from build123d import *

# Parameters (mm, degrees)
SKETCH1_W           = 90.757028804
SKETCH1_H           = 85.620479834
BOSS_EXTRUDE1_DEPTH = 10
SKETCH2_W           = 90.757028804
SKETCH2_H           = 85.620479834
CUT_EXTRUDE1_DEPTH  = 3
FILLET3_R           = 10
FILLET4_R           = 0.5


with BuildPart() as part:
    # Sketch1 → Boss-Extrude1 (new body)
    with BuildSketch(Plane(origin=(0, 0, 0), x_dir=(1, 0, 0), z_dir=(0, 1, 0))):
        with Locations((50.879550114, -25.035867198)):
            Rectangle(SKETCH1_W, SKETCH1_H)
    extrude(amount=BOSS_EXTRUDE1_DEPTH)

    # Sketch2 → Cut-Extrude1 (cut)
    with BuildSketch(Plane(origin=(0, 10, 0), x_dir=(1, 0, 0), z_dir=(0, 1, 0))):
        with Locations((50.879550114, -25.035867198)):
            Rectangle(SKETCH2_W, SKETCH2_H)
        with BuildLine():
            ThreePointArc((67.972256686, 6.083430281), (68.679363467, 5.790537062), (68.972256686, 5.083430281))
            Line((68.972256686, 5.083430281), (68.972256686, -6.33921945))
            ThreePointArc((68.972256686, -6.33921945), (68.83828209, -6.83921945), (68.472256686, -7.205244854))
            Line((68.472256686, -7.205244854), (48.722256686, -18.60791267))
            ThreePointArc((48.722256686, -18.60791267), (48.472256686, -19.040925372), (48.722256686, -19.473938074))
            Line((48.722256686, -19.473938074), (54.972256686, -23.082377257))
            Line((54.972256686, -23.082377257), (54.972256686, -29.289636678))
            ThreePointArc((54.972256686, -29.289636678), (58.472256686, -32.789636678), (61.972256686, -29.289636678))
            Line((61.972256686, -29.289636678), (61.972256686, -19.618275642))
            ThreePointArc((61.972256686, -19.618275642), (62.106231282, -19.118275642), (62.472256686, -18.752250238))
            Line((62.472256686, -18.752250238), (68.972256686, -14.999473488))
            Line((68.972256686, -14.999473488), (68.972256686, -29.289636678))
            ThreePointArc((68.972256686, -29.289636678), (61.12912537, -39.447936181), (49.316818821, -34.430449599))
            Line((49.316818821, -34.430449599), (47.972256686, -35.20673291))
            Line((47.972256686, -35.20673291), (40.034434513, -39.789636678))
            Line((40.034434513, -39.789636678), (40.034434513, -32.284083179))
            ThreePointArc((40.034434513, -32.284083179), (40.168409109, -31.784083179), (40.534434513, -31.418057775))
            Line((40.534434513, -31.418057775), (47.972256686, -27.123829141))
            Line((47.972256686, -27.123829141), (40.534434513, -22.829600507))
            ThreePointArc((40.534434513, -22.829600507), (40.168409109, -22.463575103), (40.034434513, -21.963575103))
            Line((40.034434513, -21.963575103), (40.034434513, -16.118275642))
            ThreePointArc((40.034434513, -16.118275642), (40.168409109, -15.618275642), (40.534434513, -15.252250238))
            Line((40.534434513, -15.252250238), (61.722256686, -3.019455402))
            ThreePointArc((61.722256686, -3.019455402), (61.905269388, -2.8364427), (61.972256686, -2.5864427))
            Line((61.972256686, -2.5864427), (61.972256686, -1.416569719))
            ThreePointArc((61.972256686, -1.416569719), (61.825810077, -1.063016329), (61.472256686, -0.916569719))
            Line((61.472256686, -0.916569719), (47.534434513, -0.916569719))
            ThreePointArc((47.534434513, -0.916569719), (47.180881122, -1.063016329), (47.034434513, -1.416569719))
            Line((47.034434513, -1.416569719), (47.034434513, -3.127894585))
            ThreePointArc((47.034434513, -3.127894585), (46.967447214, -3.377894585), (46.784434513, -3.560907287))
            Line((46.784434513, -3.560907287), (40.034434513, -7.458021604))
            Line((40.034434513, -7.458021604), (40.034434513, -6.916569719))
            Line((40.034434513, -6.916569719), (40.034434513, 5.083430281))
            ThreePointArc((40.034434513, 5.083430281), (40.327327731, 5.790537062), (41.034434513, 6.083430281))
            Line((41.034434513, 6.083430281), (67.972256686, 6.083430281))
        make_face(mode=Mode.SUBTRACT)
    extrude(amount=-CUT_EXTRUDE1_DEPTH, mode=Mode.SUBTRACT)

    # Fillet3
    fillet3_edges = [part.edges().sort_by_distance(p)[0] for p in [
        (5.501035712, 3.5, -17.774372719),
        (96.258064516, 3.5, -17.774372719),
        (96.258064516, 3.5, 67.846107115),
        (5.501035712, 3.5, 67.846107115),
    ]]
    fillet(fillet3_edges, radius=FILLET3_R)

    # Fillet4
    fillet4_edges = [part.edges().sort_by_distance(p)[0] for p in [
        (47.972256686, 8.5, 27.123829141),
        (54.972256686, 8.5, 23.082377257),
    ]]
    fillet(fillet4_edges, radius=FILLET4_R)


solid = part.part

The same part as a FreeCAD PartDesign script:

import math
import FreeCAD as App
import Part
import Sketcher
from FreeCAD import Vector
Q = App.Units.Quantity


def edges_at(feature, points):
    """Names of the edges that pass closest to the given points."""
    edges = feature.Shape.Edges
    near = lambda p: min(range(len(edges)), key=lambda i: edges[i].distToShape(Part.Vertex(*p))[0])
    return sorted({f"Edge{near(p) + 1}" for p in points})


def add_polygon(sketch, points):
    """Adds a closed chain of lines whose ends are joined by coincident constraints."""
    first, n = sketch.GeometryCount, len(points)
    for a, b in zip(points, points[1:] + points[:1]):
        sketch.addGeometry(Part.LineSegment(App.Vector(*a, 0), App.Vector(*b, 0)), False)
    for i in range(n):
        sketch.addConstraint(Sketcher.Constraint("Coincident", first + i, 2, first + (i + 1) % n, 1))

doc = App.newDocument("Part")
params = doc.addObject("Spreadsheet::Sheet", "Params")
for row, (alias, value) in enumerate([
    ("pad1_length", "10 mm"),
    ("sketch2_radius", "1 mm"),
    ("sketch2_radius2", "0.5 mm"),
    ("sketch2_radius3", "3.5 mm"),
    ("sketch2_radius4", "10.5 mm"),
    ("pocket1_length", "3 mm"),
    ("fillet_radius", "10 mm"),
    ("fillet2_radius", "0.5 mm"),
], start=1):
    params.set(f"A{row}", alias)
    params.set(f"B{row}", "=" + value)
    params.setAlias(f"B{row}", alias)

body = doc.addObject("PartDesign::Body", "Body")

# Sketch on XZ plane
sketch1 = doc.addObject("Sketcher::SketchObject", "Sketch")
body.addObject(sketch1)
sketch1.AttachmentSupport = (doc.XZ_Plane, [""])
sketch1.MapMode = "FlatFace"
add_polygon(sketch1, [(5.501036, -17.774373), (5.501036, 67.846107), (96.258065, 67.846107), (96.258065, -17.774373)])  # lines 0-3
sketch1.addConstraint(Sketcher.Constraint("Vertical", 0))
sketch1.addConstraint(Sketcher.Constraint("Horizontal", 1))
sketch1.addConstraint(Sketcher.Constraint("Vertical", 2))
sketch1.addConstraint(Sketcher.Constraint("Horizontal", 3))
sketch1.addConstraint(Sketcher.Constraint("DistanceX", 1, 1, 1, 2, 90.757029))
sketch1.addConstraint(Sketcher.Constraint("DistanceY", 0, 1, 0, 2, 85.62048))
sketch1.addConstraint(Sketcher.Constraint("DistanceX", -1, 1, 0, 2, 5.501036))
sketch1.addConstraint(Sketcher.Constraint("DistanceY", -1, 1, 0, 2, 67.846107))
pad1 = doc.addObject("PartDesign::Pad", "Pad")
body.addObject(pad1)
pad1.Profile = sketch1
pad1.setExpression("Length", "Params.pad1_length")
pad1.Reversed = True

# Sketch on XZ plane
sketch2 = doc.addObject("Sketcher::SketchObject", "Sketch001")
body.addObject(sketch2)
sketch2.AttachmentSupport = (doc.XZ_Plane, [""])
sketch2.MapMode = "FlatFace"
sketch2.AttachmentOffset = App.Placement(Vector(0, 0, -10), App.Rotation())
add_polygon(sketch2, [(5.501036, -17.774373), (5.501036, 67.846107), (96.258065, 67.846107), (96.258065, -17.774373)])  # lines 0-3
sketch2.addGeometry(Part.LineSegment(Vector(41.034435, -6.08343, 0), Vector(67.972257, -6.08343, 0)), False)  # 4
sketch2.addGeometry(Part.ArcOfCircle(Part.Circle(Vector(67.972257, -5.08343, 0), Vector(0, 0, 1), 1), math.radians(-90), math.radians(0)), False)  # 5
sketch2.addGeometry(Part.LineSegment(Vector(68.972257, -5.08343, 0), Vector(68.972257, 6.339219, 0)), False)  # 6
sketch2.addGeometry(Part.ArcOfCircle(Part.Circle(Vector(67.972257, 6.339219, 0), Vector(0, 0, 1), 1), math.radians(0), math.radians(60)), False)  # 7
sketch2.addGeometry(Part.LineSegment(Vector(68.472257, 7.205245, 0), Vector(48.722257, 18.607913, 0)), False)  # 8
sketch2.addGeometry(Part.ArcOfCircle(Part.Circle(Vector(48.972257, 19.040925, 0), Vector(0, 0, 1), 0.5), math.radians(120), math.radians(240)), False)  # 9
sketch2.addGeometry(Part.LineSegment(Vector(48.722257, 19.473938, 0), Vector(54.972257, 23.082377, 0)), False)  # 10
sketch2.addGeometry(Part.LineSegment(Vector(54.972257, 23.082377, 0), Vector(54.972257, 29.289637, 0)), False)  # 11
sketch2.addGeometry(Part.ArcOfCircle(Part.Circle(Vector(58.472257, 29.289637, 0), Vector(0, 0, 1), 3.5), math.radians(0), math.radians(180)), False)  # 12
sketch2.addGeometry(Part.LineSegment(Vector(61.972257, 29.289637, 0), Vector(61.972257, 19.618276, 0)), False)  # 13
sketch2.addGeometry(Part.ArcOfCircle(Part.Circle(Vector(62.972257, 19.618276, 0), Vector(0, 0, 1), 1), math.radians(180), math.radians(240)), False)  # 14
sketch2.addGeometry(Part.LineSegment(Vector(62.472257, 18.75225, 0), Vector(68.972257, 14.999473, 0)), False)  # 15
sketch2.addGeometry(Part.LineSegment(Vector(68.972257, 14.999473, 0), Vector(68.972257, 29.289637, 0)), False)  # 16
sketch2.addGeometry(Part.ArcOfCircle(Part.Circle(Vector(58.472257, 29.289637, 0), Vector(0, 0, 1), 10.5), math.radians(0), math.radians(150.685625)), False)  # 17
sketch2.addGeometry(Part.LineSegment(Vector(49.316819, 34.43045, 0), Vector(47.972257, 35.206733, 0)), False)  # 18
sketch2.addGeometry(Part.LineSegment(Vector(47.972257, 35.206733, 0), Vector(40.034435, 39.789637, 0)), False)  # 19
sketch2.addGeometry(Part.LineSegment(Vector(40.034435, 39.789637, 0), Vector(40.034435, 32.284083, 0)), False)  # 20
sketch2.addGeometry(Part.ArcOfCircle(Part.Circle(Vector(41.034435, 32.284083, 0), Vector(0, 0, 1), 1), math.radians(180), math.radians(240)), False)  # 21
sketch2.addGeometry(Part.LineSegment(Vector(40.534435, 31.418058, 0), Vector(47.972257, 27.123829, 0)), False)  # 22
sketch2.addGeometry(Part.LineSegment(Vector(47.972257, 27.123829, 0), Vector(40.534435, 22.829601, 0)), False)  # 23
sketch2.addGeometry(Part.ArcOfCircle(Part.Circle(Vector(41.034435, 21.963575, 0), Vector(0, 0, 1), 1), math.radians(120), math.radians(180)), False)  # 24
sketch2.addGeometry(Part.LineSegment(Vector(40.034435, 21.963575, 0), Vector(40.034435, 16.118276, 0)), False)  # 25
sketch2.addGeometry(Part.ArcOfCircle(Part.Circle(Vector(41.034435, 16.118276, 0), Vector(0, 0, 1), 1), math.radians(180), math.radians(240)), False)  # 26
sketch2.addGeometry(Part.LineSegment(Vector(40.534435, 15.25225, 0), Vector(61.722257, 3.019455, 0)), False)  # 27
sketch2.addGeometry(Part.ArcOfCircle(Part.Circle(Vector(61.472257, 2.586443, 0), Vector(0, 0, 1), 0.5), math.radians(0), math.radians(60)), False)  # 28
sketch2.addGeometry(Part.LineSegment(Vector(61.972257, 2.586443, 0), Vector(61.972257, 1.41657, 0)), False)  # 29
sketch2.addGeometry(Part.ArcOfCircle(Part.Circle(Vector(61.472257, 1.41657, 0), Vector(0, 0, 1), 0.5), math.radians(-90), math.radians(0)), False)  # 30
sketch2.addGeometry(Part.LineSegment(Vector(61.472257, 0.91657, 0), Vector(47.534435, 0.91657, 0)), False)  # 31
sketch2.addGeometry(Part.ArcOfCircle(Part.Circle(Vector(47.534435, 1.41657, 0), Vector(0, 0, 1), 0.5), math.radians(180), math.radians(270)), False)  # 32
sketch2.addGeometry(Part.LineSegment(Vector(47.034435, 1.41657, 0), Vector(47.034435, 3.127895, 0)), False)  # 33
sketch2.addGeometry(Part.ArcOfCircle(Part.Circle(Vector(46.534435, 3.127895, 0), Vector(0, 0, 1), 0.5), math.radians(0), math.radians(60)), False)  # 34
sketch2.addGeometry(Part.LineSegment(Vector(46.784435, 3.560907, 0), Vector(40.034435, 7.458022, 0)), False)  # 35
sketch2.addGeometry(Part.LineSegment(Vector(40.034435, 7.458022, 0), Vector(40.034435, -5.08343, 0)), False)  # 36
sketch2.addGeometry(Part.ArcOfCircle(Part.Circle(Vector(41.034435, -5.08343, 0), Vector(0, 0, 1), 1), math.radians(180), math.radians(270)), False)  # 37
sketch2.addConstraint(Sketcher.Constraint("Tangent", 4, 2, 5, 1))
sketch2.addConstraint(Sketcher.Constraint("Tangent", 5, 2, 6, 1))
sketch2.addConstraint(Sketcher.Constraint("Tangent", 6, 2, 7, 1))
sketch2.addConstraint(Sketcher.Constraint("Tangent", 7, 2, 8, 1))
sketch2.addConstraint(Sketcher.Constraint("Tangent", 8, 2, 9, 2))
sketch2.addConstraint(Sketcher.Constraint("Tangent", 9, 1, 10, 1))
sketch2.addConstraint(Sketcher.Constraint("Coincident", 10, 2, 11, 1))
sketch2.addConstraint(Sketcher.Constraint("Tangent", 11, 2, 12, 2))
sketch2.addConstraint(Sketcher.Constraint("Tangent", 12, 1, 13, 1))
sketch2.addConstraint(Sketcher.Constraint("Tangent", 13, 2, 14, 1))
sketch2.addConstraint(Sketcher.Constraint("Tangent", 14, 2, 15, 1))
sketch2.addConstraint(Sketcher.Constraint("Coincident", 15, 2, 16, 1))
sketch2.addConstraint(Sketcher.Constraint("Tangent", 16, 2, 17, 1))
sketch2.addConstraint(Sketcher.Constraint("Coincident", 17, 2, 18, 1))
sketch2.addConstraint(Sketcher.Constraint("Coincident", 18, 2, 19, 1))
sketch2.addConstraint(Sketcher.Constraint("Coincident", 19, 2, 20, 1))
sketch2.addConstraint(Sketcher.Constraint("Tangent", 20, 2, 21, 1))
sketch2.addConstraint(Sketcher.Constraint("Tangent", 21, 2, 22, 1))
sketch2.addConstraint(Sketcher.Constraint("Coincident", 22, 2, 23, 1))
sketch2.addConstraint(Sketcher.Constraint("Tangent", 23, 2, 24, 1))
sketch2.addConstraint(Sketcher.Constraint("Tangent", 24, 2, 25, 1))
sketch2.addConstraint(Sketcher.Constraint("Tangent", 25, 2, 26, 1))
sketch2.addConstraint(Sketcher.Constraint("Tangent", 26, 2, 27, 1))
sketch2.addConstraint(Sketcher.Constraint("Tangent", 27, 2, 28, 2))
sketch2.addConstraint(Sketcher.Constraint("Tangent", 28, 1, 29, 1))
sketch2.addConstraint(Sketcher.Constraint("Tangent", 29, 2, 30, 2))
sketch2.addConstraint(Sketcher.Constraint("Tangent", 30, 1, 31, 1))
sketch2.addConstraint(Sketcher.Constraint("Tangent", 31, 2, 32, 2))
sketch2.addConstraint(Sketcher.Constraint("Tangent", 32, 1, 33, 1))
sketch2.addConstraint(Sketcher.Constraint("Tangent", 33, 2, 34, 1))
sketch2.addConstraint(Sketcher.Constraint("Tangent", 34, 2, 35, 1))
sketch2.addConstraint(Sketcher.Constraint("Coincident", 35, 2, 36, 1))
sketch2.addConstraint(Sketcher.Constraint("Tangent", 36, 2, 37, 1))
sketch2.addConstraint(Sketcher.Constraint("Tangent", 37, 2, 4, 1))
sketch2.addConstraint(Sketcher.Constraint("Vertical", 0))
sketch2.addConstraint(Sketcher.Constraint("Horizontal", 1))
sketch2.addConstraint(Sketcher.Constraint("Vertical", 2))
sketch2.addConstraint(Sketcher.Constraint("Horizontal", 3))
sketch2.addConstraint(Sketcher.Constraint("Horizontal", 4))
sketch2.addConstraint(Sketcher.Constraint("Vertical", 6))
sketch2.addConstraint(Sketcher.Constraint("Vertical", 11))
sketch2.addConstraint(Sketcher.Constraint("Vertical", 13))
sketch2.addConstraint(Sketcher.Constraint("Vertical", 16))
sketch2.addConstraint(Sketcher.Constraint("Vertical", 20))
sketch2.addConstraint(Sketcher.Constraint("Vertical", 25))
sketch2.addConstraint(Sketcher.Constraint("Vertical", 29))
sketch2.addConstraint(Sketcher.Constraint("Horizontal", 31))
sketch2.addConstraint(Sketcher.Constraint("Vertical", 33))
sketch2.addConstraint(Sketcher.Constraint("Vertical", 36))
sketch2.addConstraint(Sketcher.Constraint("Coincident", 17, 3, 12, 3))
sketch2.addConstraint(Sketcher.Constraint("Equal", 5, 7))
sketch2.addConstraint(Sketcher.Constraint("Equal", 7, 14))
sketch2.addConstraint(Sketcher.Constraint("Equal", 14, 21))
sketch2.addConstraint(Sketcher.Constraint("Equal", 21, 24))
sketch2.addConstraint(Sketcher.Constraint("Equal", 24, 26))
sketch2.addConstraint(Sketcher.Constraint("Equal", 9, 28))
sketch2.addConstraint(Sketcher.Constraint("Equal", 28, 30))
sketch2.addConstraint(Sketcher.Constraint("Equal", 30, 32))
sketch2.addConstraint(Sketcher.Constraint("Equal", 32, 34))
sketch2.addConstraint(Sketcher.Constraint("Equal", 26, 37))
sketch2.addConstraint(Sketcher.Constraint("Parallel", 8, 15))
sketch2.addConstraint(Sketcher.Constraint("Parallel", 15, 18))
sketch2.addConstraint(Sketcher.Constraint("Parallel", 18, 19))
sketch2.addConstraint(Sketcher.Constraint("Parallel", 19, 22))
sketch2.addConstraint(Sketcher.Constraint("Parallel", 10, 23))
sketch2.addConstraint(Sketcher.Constraint("Parallel", 22, 27))
sketch2.addConstraint(Sketcher.Constraint("Parallel", 27, 35))
sketch2.addConstraint(Sketcher.Constraint("Vertical", 21, 3, 24, 3))
sketch2.addConstraint(Sketcher.Constraint("Vertical", 26, 3, 37, 3))
sketch2.addConstraint(Sketcher.Constraint("Vertical", 8, 2, 9, 1))
sketch2.addConstraint(Sketcher.Constraint("Vertical", 6, 2, 15, 2))
sketch2.addConstraint(Sketcher.Constraint("Vertical", 18, 2, 22, 2))
sketch2.addConstraint(Sketcher.Constraint("Vertical", 13, 2, 28, 1))
sketch2.addConstraint(Sketcher.Constraint("Radius", 5, 1.0))
sketch2.addConstraint(Sketcher.Constraint("Radius", 9, 0.5))
sketch2.addConstraint(Sketcher.Constraint("Radius", 12, 3.5))
sketch2.addConstraint(Sketcher.Constraint("Radius", 17, 10.5))
sketch2.addConstraint(Sketcher.Constraint("Angle", 8, Q("150 deg")))
sketch2.addConstraint(Sketcher.Constraint("DistanceX", 9, 3, 7, 3, 19.0))
sketch2.addConstraint(Sketcher.Constraint("DistanceX", 18, 2, 11, 2, 7.0))
sketch2.addConstraint(Sketcher.Constraint("DistanceY", 37, 3, 31, 2, 6.0))
sketch2.addConstraint(Sketcher.Constraint("DistanceX", 37, 3, 32, 1, 6.0))
sketch2.addConstraint(Sketcher.Constraint("DistanceY", 11, 2, 19, 2, 10.5))
sketch2.addConstraint(Sketcher.Constraint("DistanceY", 25, 2, 25, 1, 5.845299))
sketch2.addConstraint(Sketcher.Constraint("DistanceX", 1, 1, 1, 2, 90.757029))
sketch2.addConstraint(Sketcher.Constraint("DistanceY", 0, 1, 0, 2, 85.62048))
sketch2.addConstraint(Sketcher.Constraint("DistanceY", 6, 1, 6, 2, 11.42265))
sketch2.addConstraint(Sketcher.Constraint("DistanceY", 11, 1, 11, 2, 6.207259))
sketch2.addConstraint(Sketcher.Constraint("DistanceY", 13, 2, 13, 1, 9.671361))
sketch2.addConstraint(Sketcher.Constraint("DistanceY", 36, 2, 36, 1, 12.541452))
sketch2.addConstraint(Sketcher.Constraint("DistanceY", -1, 1, 23, 2, 22.829601))
sketch2.addConstraint(Sketcher.Constraint("DistanceY", 14, 3, 24, 3, 2.345299))
sketch2.addConstraint(Sketcher.Constraint("DistanceX", 0, 2, 21, 3, 35.533399))
sketch2.addConstraint(Sketcher.Constraint("Distance", 27, 24.46559))
sketch2.addConstraint(Sketcher.Constraint("DistanceX", -1, 1, 17, 2, 49.316819))
sketch2.addConstraint(Sketcher.Constraint("DistanceY", 26, 3, 0, 2, 51.727831))
sketch2.setExpression("Constraints[77]", "Params.sketch2_radius")
sketch2.setExpression("Constraints[78]", "Params.sketch2_radius2")
sketch2.setExpression("Constraints[79]", "Params.sketch2_radius3")
sketch2.setExpression("Constraints[80]", "Params.sketch2_radius4")
pocket1 = doc.addObject("PartDesign::Pocket", "Pocket")
body.addObject(pocket1)
pocket1.Profile = sketch2
pocket1.setExpression("Length", "Params.pocket1_length")
pocket1.Reversed = True
doc.recompute()

fillet = doc.addObject("PartDesign::Fillet", "Fillet")
body.addObject(fillet)
fillet.Base = (pocket1, edges_at(pocket1, [
    (5.501, 3.5, -17.774),
    (96.258, 3.5, -17.774),
    (96.258, 3.5, 67.846),
    (5.501, 3.5, 67.846),
]))
fillet.setExpression("Radius", "Params.fillet_radius")
doc.recompute()

fillet2 = doc.addObject("PartDesign::Fillet", "Fillet001")
body.addObject(fillet2)
fillet2.Base = (fillet, edges_at(fillet, [(47.972, 8.5, 27.124), (54.972, 8.5, 23.082)]))
fillet2.setExpression("Radius", "Params.fillet2_radius")

doc.recompute()
